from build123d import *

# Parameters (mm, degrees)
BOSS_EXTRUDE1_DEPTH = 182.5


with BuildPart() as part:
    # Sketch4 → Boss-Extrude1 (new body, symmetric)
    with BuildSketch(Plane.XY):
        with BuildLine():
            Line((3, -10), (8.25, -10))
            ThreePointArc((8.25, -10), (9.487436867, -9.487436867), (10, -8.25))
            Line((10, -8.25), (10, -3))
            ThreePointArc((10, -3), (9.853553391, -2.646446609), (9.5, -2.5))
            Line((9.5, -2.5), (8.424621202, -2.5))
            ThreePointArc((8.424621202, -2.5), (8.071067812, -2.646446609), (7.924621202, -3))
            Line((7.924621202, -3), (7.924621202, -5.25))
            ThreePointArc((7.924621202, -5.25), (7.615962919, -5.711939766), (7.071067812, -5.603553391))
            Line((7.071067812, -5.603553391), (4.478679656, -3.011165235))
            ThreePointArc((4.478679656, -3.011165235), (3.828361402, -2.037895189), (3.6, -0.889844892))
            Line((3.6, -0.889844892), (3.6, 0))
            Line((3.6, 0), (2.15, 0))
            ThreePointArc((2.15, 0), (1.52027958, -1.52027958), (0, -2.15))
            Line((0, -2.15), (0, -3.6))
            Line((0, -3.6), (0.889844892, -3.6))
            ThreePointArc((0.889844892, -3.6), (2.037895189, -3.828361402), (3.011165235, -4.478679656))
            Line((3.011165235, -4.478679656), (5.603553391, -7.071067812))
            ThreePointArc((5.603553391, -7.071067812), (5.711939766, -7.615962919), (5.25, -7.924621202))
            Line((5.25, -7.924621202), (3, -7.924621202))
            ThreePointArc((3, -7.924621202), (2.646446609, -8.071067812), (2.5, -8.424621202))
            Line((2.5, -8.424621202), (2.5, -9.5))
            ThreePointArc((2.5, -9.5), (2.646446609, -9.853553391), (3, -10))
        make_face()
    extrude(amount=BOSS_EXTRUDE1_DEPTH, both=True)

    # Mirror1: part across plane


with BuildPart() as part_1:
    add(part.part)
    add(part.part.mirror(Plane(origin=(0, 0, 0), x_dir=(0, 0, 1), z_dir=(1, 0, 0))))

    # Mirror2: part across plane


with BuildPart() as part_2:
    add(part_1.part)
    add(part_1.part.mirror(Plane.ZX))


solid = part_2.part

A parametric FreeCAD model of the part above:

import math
import FreeCAD as App
import Part
import Sketcher

doc = App.newDocument("Part")
body = doc.addObject("PartDesign::Body", "Body")

# Sketch on XY plane
sketch1 = body.newObject("Sketcher::SketchObject", "Sketch")
sketch1.AttachmentSupport = (doc.getObject("XY_Plane"), [""])
sketch1.MapMode = "FlatFace"
sketch1.addGeometry(Part.LineSegment(App.Vector(3, -10, 0), App.Vector(8.25, -10, 0)), False)
sketch1.addGeometry(Part.ArcOfCircle(Part.Circle(App.Vector(8.25, -8.25, 0), App.Vector(0, 0, 1), 1.75), math.radians(-90), math.radians(0)), False)
sketch1.addGeometry(Part.LineSegment(App.Vector(10, -8.25, 0), App.Vector(10, -3, 0)), False)
sketch1.addGeometry(Part.ArcOfCircle(Part.Circle(App.Vector(9.5, -3, 0), App.Vector(0, 0, 1), 0.5), math.radians(0), math.radians(90)), False)
sketch1.addGeometry(Part.LineSegment(App.Vector(9.5, -2.5, 0), App.Vector(8.42, -2.5, 0)), False)
sketch1.addGeometry(Part.ArcOfCircle(Part.Circle(App.Vector(8.42, -3, 0), App.Vector(0, 0, 1), 0.5), math.radians(90), math.radians(180)), False)
sketch1.addGeometry(Part.LineSegment(App.Vector(7.92, -3, 0), App.Vector(7.92, -5.25, 0)), False)
sketch1.addGeometry(Part.ArcOfCircle(Part.Circle(App.Vector(7.42, -5.25, 0), App.Vector(0, 0, 1), 0.5), math.radians(-135), math.radians(0)), False)
sketch1.addGeometry(Part.LineSegment(App.Vector(7.07, -5.6, 0), App.Vector(4.48, -3.01, 0)), False)
sketch1.addGeometry(Part.ArcOfCircle(Part.Circle(App.Vector(6.6, -0.89, 0), App.Vector(0, 0, 1), 3), math.radians(180), math.radians(225)), False)
sketch1.addGeometry(Part.LineSegment(App.Vector(3.6, -0.89, 0), App.Vector(3.6, 0, 0)), False)
sketch1.addGeometry(Part.LineSegment(App.Vector(3.6, 0, 0), App.Vector(2.15, 0, 0)), False)
sketch1.addGeometry(Part.ArcOfCircle(Part.Circle(App.Vector(0, 0, 0), App.Vector(0, 0, 1), 2.15), math.radians(-90), math.radians(0)), False)
sketch1.addGeometry(Part.LineSegment(App.Vector(0, -2.15, 0), App.Vector(0, -3.6, 0)), False)
sketch1.addGeometry(Part.LineSegment(App.Vector(0, -3.6, 0), App.Vector(0.89, -3.6, 0)), False)
sketch1.addGeometry(Part.ArcOfCircle(Part.Circle(App.Vector(0.89, -6.6, 0), App.Vector(0, 0, 1), 3), math.radians(45), math.radians(90)), False)
sketch1.addGeometry(Part.LineSegment(App.Vector(3.01, -4.48, 0), App.Vector(5.6, -7.07, 0)), False)
sketch1.addGeometry(Part.ArcOfCircle(Part.Circle(App.Vector(5.25, -7.42, 0), App.Vector(0, 0, 1), 0.5), math.radians(-90), math.radians(45)), False)
sketch1.addGeometry(Part.LineSegment(App.Vector(5.25, -7.92, 0), App.Vector(3, -7.92, 0)), False)
sketch1.addGeometry(Part.ArcOfCircle(Part.Circle(App.Vector(3, -8.42, 0), App.Vector(0, 0, 1), 0.5), math.radians(90), math.radians(180)), False)
sketch1.addGeometry(Part.LineSegment(App.Vector(2.5, -8.42, 0), App.Vector(2.5, -9.5, 0)), False)
sketch1.addGeometry(Part.ArcOfCircle(Part.Circle(App.Vector(3, -9.5, 0), App.Vector(0, 0, 1), 0.5), math.radians(180), math.radians(270)), False)
sketch1.addConstraint(Sketcher.Constraint("Tangent", 0, 2, 1, 1))
sketch1.addConstraint(Sketcher.Constraint("Tangent", 1, 2, 2, 1))
sketch1.addConstraint(Sketcher.Constraint("Tangent", 2, 2, 3, 1))
sketch1.addConstraint(Sketcher.Constraint("Tangent", 3, 2, 4, 1))
sketch1.addConstraint(Sketcher.Constraint("Tangent", 4, 2, 5, 1))
sketch1.addConstraint(Sketcher.Constraint("Tangent", 5, 2, 6, 1))
sketch1.addConstraint(Sketcher.Constraint("Tangent", 6, 2, 7, 2))
sketch1.addConstraint(Sketcher.Constraint("Tangent", 7, 1, 8, 1))
sketch1.addConstraint(Sketcher.Constraint("Tangent", 8, 2, 9, 2))
sketch1.addConstraint(Sketcher.Constraint("Tangent", 9, 1, 10, 1))
sketch1.addConstraint(Sketcher.Constraint("Coincident", 10, 2, 11, 1))
sketch1.addConstraint(Sketcher.Constraint("Coincident", 11, 2, 12, 2))
sketch1.addConstraint(Sketcher.Constraint("Coincident", 12, 1, 13, 1))
sketch1.addConstraint(Sketcher.Constraint("Coincident", 13, 2, 14, 1))
sketch1.addConstraint(Sketcher.Constraint("Tangent", 14, 2, 15, 2))
sketch1.addConstraint(Sketcher.Constraint("Tangent", 15, 1, 16, 1))
sketch1.addConstraint(Sketcher.Constraint("Tangent", 16, 2, 17, 2))
sketch1.addConstraint(Sketcher.Constraint("Tangent", 17, 1, 18, 1))
sketch1.addConstraint(Sketcher.Constraint("Tangent", 18, 2, 19, 1))
sketch1.addConstraint(Sketcher.Constraint("Tangent", 19, 2, 20, 1))
sketch1.addConstraint(Sketcher.Constraint("Tangent", 20, 2, 21, 1))
sketch1.addConstraint(Sketcher.Constraint("Tangent", 21, 2, 0, 1))
sketch1.addConstraint(Sketcher.Constraint("Horizontal", 0))
sketch1.addConstraint(Sketcher.Constraint("Vertical", 2))
sketch1.addConstraint(Sketcher.Constraint("Horizontal", 4))
sketch1.addConstraint(Sketcher.Constraint("Vertical", 6))
sketch1.addConstraint(Sketcher.Constraint("Vertical", 10))
sketch1.addConstraint(Sketcher.Constraint("Horizontal", 11))
sketch1.addConstraint(Sketcher.Constraint("Vertical", 13))
sketch1.addConstraint(Sketcher.Constraint("Horizontal", 14))
sketch1.addConstraint(Sketcher.Constraint("Horizontal", 18))
sketch1.addConstraint(Sketcher.Constraint("Vertical", 20))
sketch1.addConstraint(Sketcher.Constraint("Coincident", 12, 3, -1, 1))
sketch1.addConstraint(Sketcher.Constraint("Equal", 3, 5))
sketch1.addConstraint(Sketcher.Constraint("Equal", 5, 7))
sketch1.addConstraint(Sketcher.Constraint("Equal", 9, 15))
sketch1.addConstraint(Sketcher.Constraint("Equal", 7, 17))
sketch1.addConstraint(Sketcher.Constraint("Equal", 17, 19))
sketch1.addConstraint(Sketcher.Constraint("Equal", 19, 21))
sketch1.addConstraint(Sketcher.Constraint("PointOnObject", 10, 2, -1))
sketch1.addConstraint(Sketcher.Constraint("PointOnObject", 12, 1, -2))
sketch1.addConstraint(Sketcher.Constraint("Parallel", 8, 16))
sketch1.addConstraint(Sketcher.Constraint("Equal", 0, 2))
sketch1.addConstraint(Sketcher.Constraint("Equal", 18, 6))
sketch1.addConstraint(Sketcher.Constraint("Equal", 14, 10))
sketch1.addConstraint(Sketcher.Constraint("Equal", 11, 13))
sketch1.addConstraint(Sketcher.Constraint("Equal", 4, 20))
sketch1.addConstraint(Sketcher.Constraint("Equal", 8, 16))
sketch1.addConstraint(Sketcher.Constraint("Radius", 9, 3.0))
sketch1.addConstraint(Sketcher.Constraint("Radius", 3, 0.5))
sketch1.addConstraint(Sketcher.Constraint("Radius", 1, 1.75))
sketch1.addConstraint(Sketcher.Constraint("Radius", 12, 2.15))
sketch1.addConstraint(Sketcher.Constraint("DistanceY", 3, 3, -1, 1, 3.0))
sketch1.addConstraint(Sketcher.Constraint("DistanceY", 0, 2, -1, 1, 10.0))
sketch1.addConstraint(Sketcher.Constraint("DistanceY", 1, 3, 7, 3, 3.0))
sketch1.addConstraint(Sketcher.Constraint("DistanceX", 11, 2, 11, 1, 1.45))
sketch1.addConstraint(Sketcher.Constraint("DistanceX", 4, 2, 4, 1, 1.075379))
pad1 = body.newObject("PartDesign::Pad", "Pad")
pad1.Profile = sketch1
pad1.Length = 365
pad1.Midplane = True
body2 = doc.addObject("PartDesign::Body", "Body001")
doc.recompute()

body2.BaseFeature = body
doc.recompute()

mirroring = doc.addObject("Part::Mirroring", "Mirroring")
mirroring.Source = body
mirroring.Base = App.Vector(0, 0, 0)
mirroring.Normal = App.Vector(1, 0, 0)
body3 = doc.addObject("PartDesign::Body", "Body002")
body3.BaseFeature = mirroring
boolean = body2.newObject("PartDesign::Boolean", "Boolean")
boolean.Type = "Fuse"
boolean.addObjects([body3])
doc.recompute()
body4 = doc.addObject("PartDesign::Body", "Body003")
doc.recompute()

body4.BaseFeature = body2
doc.recompute()

mirroring2 = doc.addObject("Part::Mirroring", "Mirroring001")
mirroring2.Source = body2
mirroring2.Base = App.Vector(0, 0, 0)
mirroring2.Normal = App.Vector(0, 1, 0)
body5 = doc.addObject("PartDesign::Body", "Body004")
body5.BaseFeature = mirroring2
boolean2 = body4.newObject("PartDesign::Boolean", "Boolean001")
boolean2.Type = "Fuse"
boolean2.addObjects([body5])
doc.recompute()
mirroring.Visibility = False
mirroring2.Visibility = False

doc.recompute()
